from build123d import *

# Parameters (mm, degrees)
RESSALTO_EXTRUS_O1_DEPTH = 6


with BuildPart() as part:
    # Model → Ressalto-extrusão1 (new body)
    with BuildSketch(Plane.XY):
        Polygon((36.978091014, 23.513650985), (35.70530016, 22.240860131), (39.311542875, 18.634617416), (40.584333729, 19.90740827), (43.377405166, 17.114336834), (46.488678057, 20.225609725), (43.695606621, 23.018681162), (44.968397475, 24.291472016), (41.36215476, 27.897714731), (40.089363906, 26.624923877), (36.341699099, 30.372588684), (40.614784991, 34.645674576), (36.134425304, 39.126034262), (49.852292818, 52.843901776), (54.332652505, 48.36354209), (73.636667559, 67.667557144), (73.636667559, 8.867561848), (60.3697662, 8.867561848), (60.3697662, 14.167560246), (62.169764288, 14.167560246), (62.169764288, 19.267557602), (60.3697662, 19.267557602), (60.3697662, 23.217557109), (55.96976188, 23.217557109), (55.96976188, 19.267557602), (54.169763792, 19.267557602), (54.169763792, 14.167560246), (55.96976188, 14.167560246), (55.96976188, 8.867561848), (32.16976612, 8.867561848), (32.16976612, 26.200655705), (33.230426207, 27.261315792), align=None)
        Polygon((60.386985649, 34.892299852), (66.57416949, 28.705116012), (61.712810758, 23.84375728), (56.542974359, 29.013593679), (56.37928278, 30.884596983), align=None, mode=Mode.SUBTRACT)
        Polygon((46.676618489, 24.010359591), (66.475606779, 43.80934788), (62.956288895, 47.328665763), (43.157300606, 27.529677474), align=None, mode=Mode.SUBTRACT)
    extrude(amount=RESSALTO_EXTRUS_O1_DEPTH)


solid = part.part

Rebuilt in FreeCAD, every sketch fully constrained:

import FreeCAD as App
import Part
import Sketcher
from FreeCAD import Vector
Q = App.Units.Quantity


def add_polygon(sketch, points):
    """Adds a closed chain of lines whose ends are joined by coincident constraints."""
    first, n = sketch.GeometryCount, len(points)
    for a, b in zip(points, points[1:] + points[:1]):
        sketch.addGeometry(Part.LineSegment(App.Vector(*a, 0), App.Vector(*b, 0)), False)
    for i in range(n):
        sketch.addConstraint(Sketcher.Constraint("Coincident", first + i, 2, first + (i + 1) % n, 1))

doc = App.newDocument("Part")
body = doc.addObject("PartDesign::Body", "Body")

# Sketch on XY plane
sketch1 = body.newObject("Sketcher::SketchObject", "Sketch")
sketch1.AttachmentSupport = (doc.getObject("XY_Plane"), [""])
sketch1.MapMode = "FlatFace"
add_polygon(sketch1, [(35.7, 22.2), (37, 23.5), (33.2, 27.3), (32.2, 26.2), (32.2, 8.9), (56, 8.9), (56, 14.2), (54.2, 14.2), (54.2, 19.3), (56, 19.3), (56, 23.2), (60.4, 23.2), (60.4, 19.3), (62.2, 19.3), (62.2, 14.2), (60.4, 14.2), (60.4, 8.9), (73.6, 8.9), (73.6, 67.7), (54.3, 48.4), (49.9, 52.8), (36.1, 39.1), (40.6, 34.6), (36.3, 30.4), (40.1, 26.6), (41.4, 27.9), (45, 24.3), (43.7, 23), (46.5, 20.2), (43.4, 17.1), (40.6, 19.9), (39.3, 18.6)])  # lines 0-31
add_polygon(sketch1, [(60.4, 34.9), (66.6, 28.7), (61.7, 23.8), (56.5, 29), (56.4, 30.9)])  # lines 32-36
add_polygon(sketch1, [(46.7, 24), (43.2, 27.5), (63, 47.3), (66.5, 43.8)])  # lines 37-40
sketch1.addConstraint([
    Sketcher.Constraint("Vertical", 3),
    Sketcher.Constraint("Horizontal", 4),
    Sketcher.Constraint("Vertical", 5),
    Sketcher.Constraint("Horizontal", 6),
    Sketcher.Constraint("Vertical", 7),
    Sketcher.Constraint("Horizontal", 8),
    Sketcher.Constraint("Vertical", 9),
    Sketcher.Constraint("Horizontal", 10),
    Sketcher.Constraint("Vertical", 11),
    Sketcher.Constraint("Horizontal", 12),
    Sketcher.Constraint("Vertical", 13),
    Sketcher.Constraint("Horizontal", 14),
    Sketcher.Constraint("Vertical", 15),
    Sketcher.Constraint("Horizontal", 16),
    Sketcher.Constraint("Vertical", 17),
    Sketcher.Constraint("Perpendicular", 0, 1),
    Sketcher.Constraint("Perpendicular", 1, 2),
    Sketcher.Constraint("Parallel", 2, 18),
    Sketcher.Constraint("Perpendicular", 18, 19),
    Sketcher.Constraint("Perpendicular", 19, 20),
    Sketcher.Constraint("Perpendicular", 20, 21),
    Sketcher.Constraint("Perpendicular", 21, 22),
    Sketcher.Constraint("Perpendicular", 22, 23),
    Sketcher.Constraint("Perpendicular", 23, 24),
    Sketcher.Constraint("Perpendicular", 24, 25),
    Sketcher.Constraint("Perpendicular", 25, 26),
    Sketcher.Constraint("Perpendicular", 26, 27),
    Sketcher.Constraint("Perpendicular", 27, 28),
    Sketcher.Constraint("Perpendicular", 28, 29),
    Sketcher.Constraint("Perpendicular", 29, 30),
    Sketcher.Constraint("Perpendicular", 30, 31),
    Sketcher.Constraint("Parallel", 31, 32),
    Sketcher.Constraint("Perpendicular", 32, 33),
    Sketcher.Constraint("Perpendicular", 33, 34),
    Sketcher.Constraint("Perpendicular", 34, 36),
    Sketcher.Constraint("Perpendicular", 36, 37),
    Sketcher.Constraint("Perpendicular", 37, 38),
    Sketcher.Constraint("Perpendicular", 38, 39),
    Sketcher.Constraint("Perpendicular", 39, 40),
    Sketcher.Constraint("Horizontal", 8, 2, 11, 2),
    Sketcher.Constraint("Horizontal", 6, 2, 13, 2),
    Sketcher.Constraint("Horizontal", 4, 2, 15, 2),
    Sketcher.Constraint("Vertical", 5, 2, 8, 2),
    Sketcher.Constraint("Vertical", 11, 2, 14, 2),
    Sketcher.Constraint("Equal", 8, 12),
    Sketcher.Constraint("Equal", 19, 21),
    Sketcher.Constraint("Equal", 1, 23),
    Sketcher.Constraint("Equal", 0, 24),
    Sketcher.Constraint("Equal", 24, 26),
    Sketcher.Constraint("Equal", 27, 29),
    Sketcher.Constraint("Equal", 26, 30),
    Sketcher.Constraint("Equal", 25, 31),
    Sketcher.Constraint("Angle", 0, Q("45 deg")),
    Sketcher.Constraint("Angle", 35, Q("95 deg")),
    Sketcher.Constraint("DistanceX", 6, 2, 6, 1, Q("1.799998 mm")),
    Sketcher.Constraint("DistanceY", 5, 1, 5, 2, Q("5.299998 mm")),
    Sketcher.Constraint("DistanceX", 7, 2, 12, 2, Q("8 mm")),
    Sketcher.Constraint("Distance", 0, Q("1.799998 mm")),
    Sketcher.Constraint("Distance", 1, Q("5.299998 mm")),
    Sketcher.Constraint("Distance", 2, Q("1.5 mm")),
    Sketcher.Constraint("Distance", 18, Q("27.3 mm")),
    Sketcher.Constraint("DistanceY", 9, 1, 9, 2, Q("3.95 mm")),
    Sketcher.Constraint("DistanceY", 12, 2, 17, 2, Q("48.4 mm")),
    Sketcher.Constraint("Distance", 27, Q("3.95 mm")),
    Sketcher.Constraint("Distance", 32, Q("8.749999 mm")),
    Sketcher.Constraint("Distance", 33, Q("6.874999 mm")),
    Sketcher.Constraint("DistanceX", 16, 1, 16, 2, Q("13.266901 mm")),
    Sketcher.Constraint("DistanceX", 1, 2, 20, 2, Q("2.903999 mm")),
    Sketcher.Constraint("DistanceY", -1, 1, 19, 2, Q("52.843902 mm")),
    Sketcher.Constraint("DistanceX", -1, 1, 22, 2, Q("36.341699 mm")),
    Sketcher.Constraint("DistanceX", -1, 1, 31, 2, Q("35.7053 mm")),
    Sketcher.Constraint("DistanceY", -1, 1, 36, 2, Q("34.8923 mm")),
    Sketcher.Constraint("DistanceX", -1, 1, 37, 2, Q("43.157301 mm")),
    Sketcher.Constraint("DistanceX", 22, 2, 25, 2, Q("8.626698 mm")),
    Sketcher.Constraint("DistanceY", 10, 2, 33, 2, Q("0.6262 mm")),
    Sketcher.Constraint("Distance", 35, Q("1.87815 mm")),
    Sketcher.Constraint("DistanceX", 4, 1, 4, 2, Q("23.799996 mm")),
    Sketcher.Constraint("DistanceY", 3, 2, 3, 1, Q("17.333094 mm")),
    Sketcher.Constraint("DistanceX", -1, 1, 32, 2, Q("66.574169 mm")),
    Sketcher.Constraint("DistanceX", -1, 1, 38, 2, Q("62.956289 mm")),
    Sketcher.Constraint("DistanceX", -1, 1, 40, 2, Q("46.676618 mm")),
    Sketcher.Constraint("DistanceY", -1, 1, 40, 2, Q("24.01036 mm")),
])
pad1 = body.newObject("PartDesign::Pad", "Pad")
pad1.Profile = sketch1
pad1.Length = 6

doc.recompute()
